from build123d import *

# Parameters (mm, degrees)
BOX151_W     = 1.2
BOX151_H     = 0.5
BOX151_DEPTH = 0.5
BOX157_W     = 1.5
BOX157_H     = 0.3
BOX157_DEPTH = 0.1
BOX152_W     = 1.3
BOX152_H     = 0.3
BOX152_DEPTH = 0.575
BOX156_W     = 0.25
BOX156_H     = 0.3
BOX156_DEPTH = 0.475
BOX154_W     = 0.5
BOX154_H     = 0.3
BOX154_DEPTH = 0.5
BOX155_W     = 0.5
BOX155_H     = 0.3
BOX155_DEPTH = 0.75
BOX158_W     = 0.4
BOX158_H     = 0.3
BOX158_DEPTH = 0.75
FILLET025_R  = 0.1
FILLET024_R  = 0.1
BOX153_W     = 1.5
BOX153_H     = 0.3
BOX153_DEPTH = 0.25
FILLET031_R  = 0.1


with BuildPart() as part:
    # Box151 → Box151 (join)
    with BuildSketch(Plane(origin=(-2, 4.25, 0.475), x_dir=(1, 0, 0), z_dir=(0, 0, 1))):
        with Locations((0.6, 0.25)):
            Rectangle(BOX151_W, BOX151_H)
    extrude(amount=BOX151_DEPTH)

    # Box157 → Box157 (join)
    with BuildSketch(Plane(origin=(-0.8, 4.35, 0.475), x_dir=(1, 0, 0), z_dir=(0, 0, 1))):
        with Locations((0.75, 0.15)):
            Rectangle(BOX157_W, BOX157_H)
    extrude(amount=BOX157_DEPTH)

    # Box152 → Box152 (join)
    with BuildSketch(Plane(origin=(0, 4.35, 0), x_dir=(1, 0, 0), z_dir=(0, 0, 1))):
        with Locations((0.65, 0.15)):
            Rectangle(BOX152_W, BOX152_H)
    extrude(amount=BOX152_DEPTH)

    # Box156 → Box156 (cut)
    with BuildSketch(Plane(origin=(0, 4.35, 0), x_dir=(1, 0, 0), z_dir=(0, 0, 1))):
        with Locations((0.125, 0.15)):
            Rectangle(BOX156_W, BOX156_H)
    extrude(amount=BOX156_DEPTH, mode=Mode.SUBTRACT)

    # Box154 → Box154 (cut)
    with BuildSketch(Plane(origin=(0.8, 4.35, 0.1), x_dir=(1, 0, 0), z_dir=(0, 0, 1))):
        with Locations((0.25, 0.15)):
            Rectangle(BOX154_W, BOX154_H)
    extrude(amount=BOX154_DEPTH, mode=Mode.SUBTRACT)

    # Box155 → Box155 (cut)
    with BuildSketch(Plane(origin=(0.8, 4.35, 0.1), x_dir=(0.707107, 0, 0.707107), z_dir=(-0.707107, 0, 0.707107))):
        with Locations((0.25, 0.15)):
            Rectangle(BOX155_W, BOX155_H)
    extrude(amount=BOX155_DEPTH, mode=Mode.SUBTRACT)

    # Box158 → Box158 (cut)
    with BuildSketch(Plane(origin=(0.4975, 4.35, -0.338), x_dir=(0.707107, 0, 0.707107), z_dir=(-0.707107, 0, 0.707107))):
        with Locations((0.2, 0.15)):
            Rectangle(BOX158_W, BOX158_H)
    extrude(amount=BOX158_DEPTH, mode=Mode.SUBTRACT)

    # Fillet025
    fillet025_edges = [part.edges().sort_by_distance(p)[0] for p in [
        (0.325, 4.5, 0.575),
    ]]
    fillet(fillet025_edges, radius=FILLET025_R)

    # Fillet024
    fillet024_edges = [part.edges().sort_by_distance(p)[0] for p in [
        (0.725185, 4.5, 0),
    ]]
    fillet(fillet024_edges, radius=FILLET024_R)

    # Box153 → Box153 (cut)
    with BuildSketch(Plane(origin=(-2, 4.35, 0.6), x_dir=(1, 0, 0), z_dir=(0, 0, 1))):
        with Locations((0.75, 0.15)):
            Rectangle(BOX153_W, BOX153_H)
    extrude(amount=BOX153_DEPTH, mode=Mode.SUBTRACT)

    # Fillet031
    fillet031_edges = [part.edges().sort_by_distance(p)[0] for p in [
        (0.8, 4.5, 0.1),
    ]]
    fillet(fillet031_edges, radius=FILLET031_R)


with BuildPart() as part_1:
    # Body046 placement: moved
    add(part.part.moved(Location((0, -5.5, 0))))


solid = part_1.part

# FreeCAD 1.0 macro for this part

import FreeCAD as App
import Part
import Sketcher
from FreeCAD import Vector


def edges_at(feature, points):
    """Names of the edges that pass closest to the given points."""
    edges = feature.Shape.Edges
    near = lambda p: min(range(len(edges)), key=lambda i: edges[i].distToShape(Part.Vertex(*p))[0])
    return sorted({f"Edge{near(p) + 1}" for p in points})


def add_polygon(sketch, points):
    """Adds a closed chain of lines whose ends are joined by coincident constraints."""
    first, n = sketch.GeometryCount, len(points)
    for a, b in zip(points, points[1:] + points[:1]):
        sketch.addGeometry(Part.LineSegment(App.Vector(*a, 0), App.Vector(*b, 0)), False)
    for i in range(n):
        sketch.addConstraint(Sketcher.Constraint("Coincident", first + i, 2, first + (i + 1) % n, 1))

doc = App.newDocument("Part")
body = doc.addObject("PartDesign::Body", "Body")

# Sketch on XY plane
sketch1 = body.newObject("Sketcher::SketchObject", "Sketch")
sketch1.AttachmentSupport = (doc.getObject("XY_Plane"), [""])
sketch1.MapMode = "FlatFace"
sketch1.AttachmentOffset = App.Placement(Vector(0, 0, 0.475), App.Rotation())
add_polygon(sketch1, [(-2, 4.8), (-2, 4.2), (-0.8, 4.2), (-0.8, 4.8)])  # lines 0-3
sketch1.addConstraint([
    Sketcher.Constraint("Vertical", 0),
    Sketcher.Constraint("Horizontal", 1),
    Sketcher.Constraint("Vertical", 2),
    Sketcher.Constraint("Horizontal", 3),
    Sketcher.Constraint("DistanceX", 1, 1, 1, 2, 1.2),
    Sketcher.Constraint("DistanceY", 0, 2, 0, 1, 0.5),
    Sketcher.Constraint("DistanceX", 0, 2, -1, 1, 2.0),
    Sketcher.Constraint("DistanceY", -1, 1, 0, 2, 4.25),
])
pad1 = body.newObject("PartDesign::Pad", "Pad")
pad1.Profile = sketch1
pad1.Length = 0.5

# Sketch on XY plane
sketch2 = body.newObject("Sketcher::SketchObject", "Sketch001")
sketch2.AttachmentSupport = (doc.getObject("XY_Plane"), [""])
sketch2.MapMode = "FlatFace"
sketch2.AttachmentOffset = App.Placement(Vector(0, 0, 0.475), App.Rotation())
add_polygon(sketch2, [(-0.8, 4.65), (-0.8, 4.35), (0.7, 4.35), (0.7, 4.65)])  # lines 0-3
sketch2.addConstraint([
    Sketcher.Constraint("Vertical", 0),
    Sketcher.Constraint("Horizontal", 1),
    Sketcher.Constraint("Vertical", 2),
    Sketcher.Constraint("Horizontal", 3),
    Sketcher.Constraint("DistanceX", 1, 1, 1, 2, 1.5),
    Sketcher.Constraint("DistanceY", 0, 2, 0, 1, 0.3),
    Sketcher.Constraint("DistanceX", 0, 2, -1, 1, 0.8),
    Sketcher.Constraint("DistanceY", -1, 1, 0, 2, 4.35),
])
pad2 = body.newObject("PartDesign::Pad", "Pad001")
pad2.Profile = sketch2
pad2.Length = 0.1

# Sketch on XY plane
sketch3 = body.newObject("Sketcher::SketchObject", "Sketch002")
sketch3.AttachmentSupport = (doc.getObject("XY_Plane"), [""])
sketch3.MapMode = "FlatFace"
add_polygon(sketch3, [(0, 4.65), (0, 4.35), (1.3, 4.35), (1.3, 4.65)])  # lines 0-3
sketch3.addConstraint([
    Sketcher.Constraint("Vertical", 0),
    Sketcher.Constraint("Horizontal", 1),
    Sketcher.Constraint("Vertical", 2),
    Sketcher.Constraint("Horizontal", 3),
    Sketcher.Constraint("PointOnObject", 0, 2, -2),
    Sketcher.Constraint("DistanceX", 1, 1, 1, 2, 1.3),
    Sketcher.Constraint("DistanceY", 0, 2, 0, 1, 0.3),
    Sketcher.Constraint("DistanceY", -1, 1, 0, 2, 4.35),
])
pad3 = body.newObject("PartDesign::Pad", "Pad002")
pad3.Profile = sketch3
pad3.Length = 0.575

# Sketch on XY plane
sketch4 = body.newObject("Sketcher::SketchObject", "Sketch003")
sketch4.AttachmentSupport = (doc.getObject("XY_Plane"), [""])
sketch4.MapMode = "FlatFace"
add_polygon(sketch4, [(0, 4.65), (0, 4.35), (0.25, 4.35), (0.25, 4.65)])  # lines 0-3
sketch4.addConstraint([
    Sketcher.Constraint("Vertical", 0),
    Sketcher.Constraint("Horizontal", 1),
    Sketcher.Constraint("Vertical", 2),
    Sketcher.Constraint("Horizontal", 3),
    Sketcher.Constraint("PointOnObject", 0, 2, -2),
    Sketcher.Constraint("DistanceY", 0, 2, 0, 1, 0.3),
    Sketcher.Constraint("DistanceX", 1, 1, 1, 2, 0.25),
    Sketcher.Constraint("DistanceY", -1, 1, 0, 2, 4.35),
])
pocket1 = body.newObject("PartDesign::Pocket", "Pocket")
pocket1.Profile = sketch4
pocket1.Length = 0.475
pocket1.Reversed = True

# Sketch on XY plane
sketch5 = body.newObject("Sketcher::SketchObject", "Sketch004")
sketch5.AttachmentSupport = (doc.getObject("XY_Plane"), [""])
sketch5.MapMode = "FlatFace"
sketch5.AttachmentOffset = App.Placement(Vector(0, 0, 0.1), App.Rotation())
add_polygon(sketch5, [(0.8, 4.65), (0.8, 4.35), (1.3, 4.35), (1.3, 4.65)])  # lines 0-3
sketch5.addConstraint([
    Sketcher.Constraint("Vertical", 0),
    Sketcher.Constraint("Horizontal", 1),
    Sketcher.Constraint("Vertical", 2),
    Sketcher.Constraint("Horizontal", 3),
    Sketcher.Constraint("DistanceX", 1, 1, 1, 2, 0.5),
    Sketcher.Constraint("DistanceY", 0, 2, 0, 1, 0.3),
    Sketcher.Constraint("DistanceX", -1, 1, 0, 2, 0.8),
    Sketcher.Constraint("DistanceY", -1, 1, 0, 2, 4.35),
])
pocket2 = body.newObject("PartDesign::Pocket", "Pocket001")
pocket2.Profile = sketch5
pocket2.Length = 0.5
pocket2.Reversed = True

# Sketch on an angled plane
sketch6 = body.newObject("Sketcher::SketchObject", "Sketch005")
sketch6.Placement = App.Placement(Vector(0.8, 4.35, 0.1), App.Rotation(Vector(0.707106781, 0, 0.707106781), Vector(0, 0.999999999, 0), Vector(-0.707106781, 0, 0.707106781), "ZXY"))
add_polygon(sketch6, [(0, 0.3), (0, 0), (0.5, 0), (0.5, 0.3)])  # lines 0-3
sketch6.addConstraint([
    Sketcher.Constraint("Vertical", 0),
    Sketcher.Constraint("Horizontal", 1),
    Sketcher.Constraint("Vertical", 2),
    Sketcher.Constraint("Horizontal", 3),
    Sketcher.Constraint("Coincident", 0, 2, -1, 1),
    Sketcher.Constraint("DistanceX", 1, 1, 1, 2, 0.5),
    Sketcher.Constraint("DistanceY", 0, 2, 0, 1, 0.3),
])
pocket3 = body.newObject("PartDesign::Pocket", "Pocket002")
pocket3.Profile = sketch6
pocket3.Length = 0.75
pocket3.Reversed = True

# Sketch on an angled plane
sketch7 = body.newObject("Sketcher::SketchObject", "Sketch006")
sketch7.Placement = App.Placement(Vector(0.4975, 4.35, -0.338), App.Rotation(Vector(0.707106781, 0, 0.707106781), Vector(0, 0.999999999, 0), Vector(-0.707106781, 0, 0.707106781), "ZXY"))
add_polygon(sketch7, [(0, 0.3), (0, 0), (0.4, 0), (0.4, 0.3)])  # lines 0-3
sketch7.addConstraint([
    Sketcher.Constraint("Vertical", 0),
    Sketcher.Constraint("Horizontal", 1),
    Sketcher.Constraint("Vertical", 2),
    Sketcher.Constraint("Horizontal", 3),
    Sketcher.Constraint("Coincident", 0, 2, -1, 1),
    Sketcher.Constraint("DistanceX", 1, 1, 1, 2, 0.4),
    Sketcher.Constraint("DistanceY", 0, 2, 0, 1, 0.3),
])
pocket4 = body.newObject("PartDesign::Pocket", "Pocket003")
pocket4.Profile = sketch7
pocket4.Length = 0.75
pocket4.Reversed = True
doc.recompute()

fillet = body.newObject("PartDesign::Fillet", "Fillet")
fillet.Base = (pocket4, edges_at(pocket4, [(0.325, 4.5, 0.575)]))
fillet.Radius = 0.1
doc.recompute()

fillet2 = body.newObject("PartDesign::Fillet", "Fillet001")
fillet2.Base = (fillet, edges_at(fillet, [(0.725, 4.5, 0)]))
fillet2.Radius = 0.1

# Sketch on XY plane
sketch8 = body.newObject("Sketcher::SketchObject", "Sketch007")
sketch8.AttachmentSupport = (doc.getObject("XY_Plane"), [""])
sketch8.MapMode = "FlatFace"
sketch8.AttachmentOffset = App.Placement(Vector(0, 0, 0.6), App.Rotation())
add_polygon(sketch8, [(-2, 4.65), (-2, 4.35), (-0.5, 4.35), (-0.5, 4.65)])  # lines 0-3
sketch8.addConstraint([
    Sketcher.Constraint("Vertical", 0),
    Sketcher.Constraint("Horizontal", 1),
    Sketcher.Constraint("Vertical", 2),
    Sketcher.Constraint("Horizontal", 3),
    Sketcher.Constraint("DistanceX", 1, 1, 1, 2, 1.5),
    Sketcher.Constraint("DistanceY", 0, 2, 0, 1, 0.3),
    Sketcher.Constraint("DistanceX", 0, 2, -1, 1, 2.0),
    Sketcher.Constraint("DistanceY", -1, 1, 0, 2, 4.35),
])
pocket5 = body.newObject("PartDesign::Pocket", "Pocket004")
pocket5.Profile = sketch8
pocket5.Length = 0.25
pocket5.Reversed = True
doc.recompute()

fillet3 = body.newObject("PartDesign::Fillet", "Fillet002")
fillet3.Base = (pocket5, edges_at(pocket5, [(0.8, 4.5, 0.1)]))
fillet3.Radius = 0.1
body2 = doc.addObject("PartDesign::Body", "Body001")
doc.recompute()

body.Placement = App.Placement(Vector(0, -5.5, 0), App.Rotation(Vector(0, 0, 1), 0))
boolean = body2.newObject("PartDesign::Boolean", "Boolean")
boolean.Type = "Fuse"
boolean.addObjects([body])

doc.recompute()
